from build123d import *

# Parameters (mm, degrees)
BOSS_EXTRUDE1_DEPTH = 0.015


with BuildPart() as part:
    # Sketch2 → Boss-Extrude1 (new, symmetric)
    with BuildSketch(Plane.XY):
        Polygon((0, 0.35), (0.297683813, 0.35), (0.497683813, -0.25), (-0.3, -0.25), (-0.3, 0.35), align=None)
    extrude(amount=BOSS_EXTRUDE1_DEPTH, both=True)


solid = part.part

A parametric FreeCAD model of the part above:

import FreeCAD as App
import Part
import Sketcher

V = App.Vector
Q = App.Units.Quantity

doc = App.newDocument("Part")
params = doc.addObject("Spreadsheet::Sheet", "Params")
for row, (alias, value) in enumerate([
    ("sketch1_height", "0.6 mm"),
    ("pad1_length", "0.03 mm"),
], start=1):
    params.set(f"A{row}", alias)
    params.set(f"B{row}", "=" + value)
    params.setAlias(f"B{row}", alias)

body = doc.addObject("PartDesign::Body", "Body")

# Sketch on XY plane
sketch1 = doc.addObject("Sketcher::SketchObject", "Sketch")
body.addObject(sketch1)
sketch1.AttachmentSupport = (doc.XY_Plane, [""])
sketch1.MapMode = "FlatFace"
sketch1.addGeometry([
    Part.LineSegment(V(0.3, 0.3, 0), V(-0.3, 0.3, 0)),
    Part.LineSegment(V(-0.3, 0.3, 0), V(-0.3, -0.2, 0)),
    Part.LineSegment(V(-0.3, -0.2, 0), V(0.5, -0.2, 0)),
    Part.LineSegment(V(0.5, -0.2, 0), V(0.3, 0.3, 0)),
], False)
sketch1.addConstraint([
    Sketcher.Constraint("Coincident", 0, 2, 1, 1),
    Sketcher.Constraint("Coincident", 1, 2, 2, 1),
    Sketcher.Constraint("Coincident", 2, 2, 3, 1),
    Sketcher.Constraint("Coincident", 3, 2, 0, 1),
    Sketcher.Constraint("Horizontal", 0),
    Sketcher.Constraint("Vertical", 1),
    Sketcher.Constraint("Horizontal", 2),
    Sketcher.Constraint("DistanceY", 1, 2, 1, 1, Q("0.6 mm")),
    Sketcher.Constraint("DistanceX", 0, 2, -1, 1, Q("0.3 mm")),
    Sketcher.Constraint("DistanceX", 3, 2, 2, 2, Q("0.2 mm")),
    Sketcher.Constraint("DistanceY", -1, 1, 0, 2, Q("0.35 mm")),
    Sketcher.Constraint("DistanceX", 0, 2, 0, 1, Q("0.597684 mm")),
])
sketch1.setExpression("Constraints[7]", "Params.sketch1_height")
pad1 = doc.addObject("PartDesign::Pad", "Pad")
body.addObject(pad1)
pad1.Profile = sketch1
pad1.setExpression("Length", "Params.pad1_length")
pad1.Midplane = True

doc.recompute()
